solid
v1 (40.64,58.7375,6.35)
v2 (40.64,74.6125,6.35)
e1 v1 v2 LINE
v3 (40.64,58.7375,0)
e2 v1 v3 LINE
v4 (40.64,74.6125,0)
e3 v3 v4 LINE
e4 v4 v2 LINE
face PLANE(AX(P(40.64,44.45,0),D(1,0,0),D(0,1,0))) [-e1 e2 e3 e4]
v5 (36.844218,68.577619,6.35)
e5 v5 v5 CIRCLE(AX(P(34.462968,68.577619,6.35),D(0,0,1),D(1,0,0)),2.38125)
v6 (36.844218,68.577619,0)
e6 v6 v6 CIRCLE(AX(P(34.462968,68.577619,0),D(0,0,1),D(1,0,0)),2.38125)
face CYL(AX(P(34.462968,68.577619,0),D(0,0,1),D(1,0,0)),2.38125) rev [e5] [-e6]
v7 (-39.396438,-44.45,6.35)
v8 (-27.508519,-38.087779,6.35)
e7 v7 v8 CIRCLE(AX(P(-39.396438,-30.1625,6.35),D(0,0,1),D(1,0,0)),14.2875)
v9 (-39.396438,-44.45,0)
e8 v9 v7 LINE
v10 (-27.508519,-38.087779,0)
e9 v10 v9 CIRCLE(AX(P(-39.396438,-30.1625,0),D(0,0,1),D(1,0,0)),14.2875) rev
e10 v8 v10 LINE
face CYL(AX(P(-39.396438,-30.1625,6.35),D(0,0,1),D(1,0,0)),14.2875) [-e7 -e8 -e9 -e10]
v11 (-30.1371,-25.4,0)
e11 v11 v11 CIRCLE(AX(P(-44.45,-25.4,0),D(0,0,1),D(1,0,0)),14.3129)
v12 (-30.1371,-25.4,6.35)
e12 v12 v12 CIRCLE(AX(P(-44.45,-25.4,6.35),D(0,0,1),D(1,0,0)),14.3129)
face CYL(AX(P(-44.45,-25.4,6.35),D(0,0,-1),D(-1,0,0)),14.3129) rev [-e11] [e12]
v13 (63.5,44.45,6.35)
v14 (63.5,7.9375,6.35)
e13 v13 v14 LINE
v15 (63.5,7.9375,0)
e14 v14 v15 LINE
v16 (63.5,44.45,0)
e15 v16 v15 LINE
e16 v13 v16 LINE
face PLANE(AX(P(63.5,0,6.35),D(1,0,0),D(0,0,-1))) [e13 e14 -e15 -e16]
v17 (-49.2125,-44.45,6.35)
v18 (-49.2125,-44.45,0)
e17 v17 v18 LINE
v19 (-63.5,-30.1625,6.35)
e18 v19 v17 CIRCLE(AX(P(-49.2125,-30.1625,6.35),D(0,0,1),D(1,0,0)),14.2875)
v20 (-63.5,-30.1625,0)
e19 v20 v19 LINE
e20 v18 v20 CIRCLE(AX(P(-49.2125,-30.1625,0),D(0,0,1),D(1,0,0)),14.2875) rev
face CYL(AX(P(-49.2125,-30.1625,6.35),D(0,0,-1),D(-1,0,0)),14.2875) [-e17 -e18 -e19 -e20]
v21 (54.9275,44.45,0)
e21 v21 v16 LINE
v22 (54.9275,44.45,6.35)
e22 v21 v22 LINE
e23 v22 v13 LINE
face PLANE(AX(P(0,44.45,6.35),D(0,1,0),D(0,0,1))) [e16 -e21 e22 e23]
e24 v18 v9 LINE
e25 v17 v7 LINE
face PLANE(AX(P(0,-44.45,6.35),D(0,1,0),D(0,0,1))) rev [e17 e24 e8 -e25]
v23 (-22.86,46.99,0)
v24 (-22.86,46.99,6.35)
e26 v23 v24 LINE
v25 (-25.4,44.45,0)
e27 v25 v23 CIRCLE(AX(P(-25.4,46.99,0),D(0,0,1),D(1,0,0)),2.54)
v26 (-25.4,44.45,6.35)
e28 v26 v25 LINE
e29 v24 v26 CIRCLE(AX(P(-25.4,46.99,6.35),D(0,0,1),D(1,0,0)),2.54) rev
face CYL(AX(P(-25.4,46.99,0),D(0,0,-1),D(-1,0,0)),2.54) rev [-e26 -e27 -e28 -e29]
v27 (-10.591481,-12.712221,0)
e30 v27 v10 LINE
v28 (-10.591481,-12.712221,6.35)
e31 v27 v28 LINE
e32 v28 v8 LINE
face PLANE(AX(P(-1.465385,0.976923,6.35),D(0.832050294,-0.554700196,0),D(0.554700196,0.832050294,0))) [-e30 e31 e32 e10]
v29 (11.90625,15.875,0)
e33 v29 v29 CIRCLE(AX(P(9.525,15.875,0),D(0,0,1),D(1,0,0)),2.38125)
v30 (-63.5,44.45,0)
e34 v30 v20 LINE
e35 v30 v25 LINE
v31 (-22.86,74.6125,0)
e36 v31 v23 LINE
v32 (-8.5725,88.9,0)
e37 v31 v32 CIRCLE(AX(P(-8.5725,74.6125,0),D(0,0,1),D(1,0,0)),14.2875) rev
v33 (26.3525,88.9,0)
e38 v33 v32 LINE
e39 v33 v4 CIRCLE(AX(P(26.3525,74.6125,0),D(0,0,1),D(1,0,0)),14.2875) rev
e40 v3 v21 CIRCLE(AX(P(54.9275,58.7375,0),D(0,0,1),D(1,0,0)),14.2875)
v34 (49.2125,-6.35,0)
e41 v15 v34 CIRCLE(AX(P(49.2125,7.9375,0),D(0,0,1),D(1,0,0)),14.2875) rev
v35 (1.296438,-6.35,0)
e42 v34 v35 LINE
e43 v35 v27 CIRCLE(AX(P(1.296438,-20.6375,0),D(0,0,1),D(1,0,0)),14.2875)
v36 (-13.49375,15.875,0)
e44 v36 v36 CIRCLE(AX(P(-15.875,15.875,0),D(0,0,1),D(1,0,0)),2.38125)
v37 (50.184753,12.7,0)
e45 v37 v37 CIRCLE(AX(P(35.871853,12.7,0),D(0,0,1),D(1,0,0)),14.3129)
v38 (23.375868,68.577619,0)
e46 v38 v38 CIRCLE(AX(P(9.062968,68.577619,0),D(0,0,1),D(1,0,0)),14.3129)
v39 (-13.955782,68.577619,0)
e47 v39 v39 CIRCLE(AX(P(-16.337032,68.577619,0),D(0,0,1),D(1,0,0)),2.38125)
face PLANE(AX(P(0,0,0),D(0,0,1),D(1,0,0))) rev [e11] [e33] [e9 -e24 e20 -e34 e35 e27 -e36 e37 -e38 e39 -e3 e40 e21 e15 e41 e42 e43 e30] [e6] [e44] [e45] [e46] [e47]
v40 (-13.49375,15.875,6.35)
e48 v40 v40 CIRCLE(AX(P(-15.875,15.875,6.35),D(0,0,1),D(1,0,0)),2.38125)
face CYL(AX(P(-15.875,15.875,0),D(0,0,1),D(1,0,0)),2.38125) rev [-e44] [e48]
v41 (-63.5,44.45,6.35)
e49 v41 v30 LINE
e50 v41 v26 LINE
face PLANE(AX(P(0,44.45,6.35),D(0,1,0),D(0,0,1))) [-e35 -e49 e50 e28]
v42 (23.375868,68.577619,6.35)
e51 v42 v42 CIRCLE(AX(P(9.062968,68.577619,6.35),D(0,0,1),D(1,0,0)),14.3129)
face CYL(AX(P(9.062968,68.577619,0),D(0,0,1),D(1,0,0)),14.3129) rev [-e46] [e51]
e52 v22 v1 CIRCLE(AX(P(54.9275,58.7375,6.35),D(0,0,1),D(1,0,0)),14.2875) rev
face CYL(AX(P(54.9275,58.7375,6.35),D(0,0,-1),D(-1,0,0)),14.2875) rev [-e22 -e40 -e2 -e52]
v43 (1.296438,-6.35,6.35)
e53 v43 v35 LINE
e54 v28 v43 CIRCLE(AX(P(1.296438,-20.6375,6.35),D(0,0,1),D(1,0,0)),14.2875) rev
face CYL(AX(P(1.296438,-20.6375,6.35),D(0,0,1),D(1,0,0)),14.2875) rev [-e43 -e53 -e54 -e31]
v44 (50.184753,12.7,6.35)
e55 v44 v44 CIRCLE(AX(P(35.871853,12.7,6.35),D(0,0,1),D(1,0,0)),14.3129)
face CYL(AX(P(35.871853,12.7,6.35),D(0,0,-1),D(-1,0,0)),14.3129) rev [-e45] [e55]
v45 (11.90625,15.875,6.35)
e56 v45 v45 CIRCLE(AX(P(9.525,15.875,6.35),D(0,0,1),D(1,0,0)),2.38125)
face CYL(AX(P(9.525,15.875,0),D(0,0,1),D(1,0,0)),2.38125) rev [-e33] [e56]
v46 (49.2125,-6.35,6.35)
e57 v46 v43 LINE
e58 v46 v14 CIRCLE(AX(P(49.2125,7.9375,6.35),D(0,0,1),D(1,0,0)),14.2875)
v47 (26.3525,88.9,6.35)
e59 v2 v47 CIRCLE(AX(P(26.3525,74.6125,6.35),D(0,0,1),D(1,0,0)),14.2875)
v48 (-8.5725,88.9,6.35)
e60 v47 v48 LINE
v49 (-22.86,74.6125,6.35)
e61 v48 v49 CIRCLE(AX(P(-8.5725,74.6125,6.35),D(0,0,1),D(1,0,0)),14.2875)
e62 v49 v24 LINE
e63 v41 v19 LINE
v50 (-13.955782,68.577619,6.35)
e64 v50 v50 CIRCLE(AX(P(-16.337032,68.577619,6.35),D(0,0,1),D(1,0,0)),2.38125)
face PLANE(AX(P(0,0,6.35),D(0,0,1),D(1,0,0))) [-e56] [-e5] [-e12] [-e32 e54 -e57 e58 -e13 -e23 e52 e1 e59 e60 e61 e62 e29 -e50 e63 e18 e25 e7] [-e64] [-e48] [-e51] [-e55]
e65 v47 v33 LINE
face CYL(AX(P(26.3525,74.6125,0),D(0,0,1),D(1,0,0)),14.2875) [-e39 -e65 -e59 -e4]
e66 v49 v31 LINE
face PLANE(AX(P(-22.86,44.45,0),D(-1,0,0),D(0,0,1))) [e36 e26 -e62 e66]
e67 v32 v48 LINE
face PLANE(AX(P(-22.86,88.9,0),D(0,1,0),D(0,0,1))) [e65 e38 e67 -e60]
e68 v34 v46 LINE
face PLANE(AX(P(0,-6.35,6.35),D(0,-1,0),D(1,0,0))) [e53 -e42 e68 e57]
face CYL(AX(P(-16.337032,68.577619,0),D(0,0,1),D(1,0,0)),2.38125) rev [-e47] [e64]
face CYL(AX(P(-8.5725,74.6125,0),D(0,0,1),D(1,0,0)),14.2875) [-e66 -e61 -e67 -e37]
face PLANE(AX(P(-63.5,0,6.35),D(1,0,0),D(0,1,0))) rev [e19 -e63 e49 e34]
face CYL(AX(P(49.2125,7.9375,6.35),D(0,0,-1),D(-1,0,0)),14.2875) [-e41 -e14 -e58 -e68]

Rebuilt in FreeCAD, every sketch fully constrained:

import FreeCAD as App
import Part
import Sketcher

V = App.Vector
Q = App.Units.Quantity


def edges_at(feature, points):
    """Names of the edges that pass closest to the given points."""
    edges = feature.Shape.Edges
    near = lambda p: min(range(len(edges)), key=lambda i: edges[i].distToShape(Part.Vertex(*p))[0])
    return sorted({f"Edge{near(p) + 1}" for p in points})

doc = App.newDocument("Part")
body = doc.addObject("PartDesign::Body", "Body")

sketch1 = body.newObject("Sketcher::SketchObject", "Sketch")
sketch1.AttachmentSupport = (doc.getObject("XY_Plane"), [""])
sketch1.MapMode = "FlatFace"
sketch1.addGeometry([
    Part.LineSegment(V(-6.35, -6.35, 0), V(63.5, -6.35, 0)),
    Part.LineSegment(V(63.5, -6.35, 0), V(63.5, 44.45, 0)),
    Part.LineSegment(V(63.5, 44.45, 0), V(-63.5, 44.45, 0)),
    Part.LineSegment(V(-63.5, 44.45, 0), V(-63.5, -44.45, 0)),
    Part.LineSegment(V(-63.5, -44.45, 0), V(-31.75, -44.45, 0)),
    Part.LineSegment(V(-31.75, -44.45, 0), V(-6.35, -6.35, 0)),
    Part.Circle(V(-44.45, -25.4, 0), V(0, 0, 1), 14.3129),
    Part.Circle(V(35.871853, 12.7, 0), V(0, 0, 1), 14.3129),
], False)
sketch1.addConstraint([
    Sketcher.Constraint("Coincident", 0, 2, 1, 1),
    Sketcher.Constraint("Coincident", 1, 2, 2, 1),
    Sketcher.Constraint("Coincident", 2, 2, 3, 1),
    Sketcher.Constraint("Coincident", 3, 2, 4, 1),
    Sketcher.Constraint("Coincident", 4, 2, 5, 1),
    Sketcher.Constraint("Coincident", 5, 2, 0, 1),
    Sketcher.Constraint("Horizontal", 0),
    Sketcher.Constraint("Vertical", 1),
    Sketcher.Constraint("Horizontal", 2),
    Sketcher.Constraint("Vertical", 3),
    Sketcher.Constraint("Horizontal", 4),
    Sketcher.Constraint("Equal", 6, 7),
    Sketcher.Constraint("Symmetric", 1, 2, 3, 2, -1, 1),
    Sketcher.Constraint("DistanceX", 2, 2, 2, 1, Q("5 in")),
    Sketcher.Constraint("DistanceY", 1, 1, 1, 2, Q("2 in")),
    Sketcher.Constraint("Diameter", 6, Q("1.127 in")),
    Sketcher.Constraint("DistanceY", 3, 2, 3, 1, Q("3.5 in")),
    Sketcher.Constraint("DistanceY", 6, 3, -1, 1, Q("1 in")),
    Sketcher.Constraint("DistanceX", 4, 2, 5, 2, Q("1 in")),
    Sketcher.Constraint("DistanceX", 0, 1, 0, 2, Q("2.75 in")),
    Sketcher.Constraint("DistanceY", -1, 1, 7, 3, Q("0.5 in")),
    Sketcher.Constraint("DistanceX", 6, 3, 4, 2, Q("0.5 in")),
    Sketcher.Constraint("DistanceX", -1, 1, 7, 3, Q("35.871853 mm")),
])
pad1 = body.newObject("PartDesign::Pad", "Pad")
pad1.Profile = sketch1
pad1.Length = Q("0.25 in")
doc.recompute()

fillet = body.newObject("PartDesign::Fillet", "Fillet")
fillet.Base = (pad1, edges_at(pad1, [
    (-31.75, -44.45, 3.175),
    (-63.5, -44.45, 3.175),
    (63.5, -6.35, 3.175),
    (-6.35, -6.35, 3.175),
]))
fillet.Radius = Q("0.5625 in")

sketch2 = body.newObject("Sketcher::SketchObject", "Sketch001")
sketch2.AttachmentSupport = (doc.getObject("XY_Plane"), [""])
sketch2.MapMode = "FlatFace"
sketch2.AttachmentOffset = App.Placement(V(0, 0, 0.25 * 25.4), App.Rotation())
sketch2.addGeometry([
    Part.LineSegment(V(-22.86, 88.9, 0), V(-22.86, 44.45, 0)),
    Part.LineSegment(V(-22.86, 44.45, 0), V(40.64, 44.45, 0)),
    Part.LineSegment(V(40.64, 44.45, 0), V(40.64, 88.9, 0)),
    Part.LineSegment(V(40.64, 88.9, 0), V(-22.86, 88.9, 0)),
], False)
sketch2.addConstraint([
    Sketcher.Constraint("Coincident", 0, 2, 1, 1),
    Sketcher.Constraint("Coincident", 1, 2, 2, 1),
    Sketcher.Constraint("Coincident", 2, 2, 3, 1),
    Sketcher.Constraint("Coincident", 3, 2, 0, 1),
    Sketcher.Constraint("Vertical", 0),
    Sketcher.Constraint("Horizontal", 1),
    Sketcher.Constraint("Vertical", 2),
    Sketcher.Constraint("Horizontal", 3),
    Sketcher.Constraint("DistanceX", 1, 1, 1, 2, Q("2.5 in")),
    Sketcher.Constraint("DistanceY", 0, 2, 0, 1, Q("1.75 in")),
    Sketcher.Constraint("DistanceX", 0, 2, -1, 1, Q("0.9 in")),
    Sketcher.Constraint("DistanceY", -1, 1, 2, 2, Q("3.5 in")),
])
pad2 = body.newObject("PartDesign::Pad", "Pad001")
pad2.Profile = sketch2
pad2.Length = Q("0.25 in")
pad2.Reversed = True
doc.recompute()

fillet2 = body.newObject("PartDesign::Fillet", "Fillet001")
fillet2.Base = (pad2, edges_at(pad2, [(-22.86, 88.9, 3.175), (40.64, 88.9, 3.175), (40.64, 44.45, 3.175)]))
fillet2.Radius = Q("0.5625 in")

sketch3 = body.newObject("Sketcher::SketchObject", "Sketch002")
sketch3.AttachmentSupport = (doc.getObject("XY_Plane"), [""])
sketch3.MapMode = "FlatFace"
sketch3.AttachmentOffset = App.Placement(V(0, 0, 0.25 * 25.4), App.Rotation())
sketch3.addGeometry(Part.Circle(V(9.062968, 68.577619, 0), V(0, 0, 1), 14.3129), False)
sketch3.addConstraint([
    Sketcher.Constraint("Diameter", 0, Q("1.127 in")),
    Sketcher.Constraint("DistanceY", -1, 1, 0, 3, Q("68.577619 mm")),
    Sketcher.Constraint("DistanceX", -1, 1, 0, 3, Q("9.062968 mm")),
])
pocket1 = body.newObject("PartDesign::Pocket", "Pocket")
pocket1.Profile = sketch3
pocket1.Type = "ThroughAll"

sketch4 = body.newObject("Sketcher::SketchObject", "Sketch003")
sketch4.AttachmentSupport = (doc.getObject("XY_Plane"), [""])
sketch4.MapMode = "FlatFace"
sketch4.AttachmentOffset = App.Placement(V(0, 0, 0.25 * 25.4), App.Rotation())
sketch4.addGeometry([
    Part.Circle(V(-16.337032, 68.577619, 0), V(0, 0, 1), 2.38125),
    Part.Circle(V(34.462968, 68.577619, 0), V(0, 0, 1), 2.38125),
    Part.Circle(V(9.062968, 68.577619, 0), V(0, 0, 1), 14.2875),
], False)
sketch4.addConstraint([
    Sketcher.Constraint("Equal", 0, 1),
    Sketcher.Constraint("Horizontal", 0, 3, 1, 3),
    Sketcher.Constraint("Horizontal", 1, 3, 2, 3),
    Sketcher.Constraint("Diameter", 0, Q("0.1875 in")),
    Sketcher.Constraint("Diameter", 2, Q("1.125 in")),
    Sketcher.Constraint("DistanceX", 0, 3, 1, 3, Q("2 in")),
    Sketcher.Constraint("DistanceX", 0, 3, 2, 3, Q("1 in")),
    Sketcher.Constraint("DistanceY", -1, 1, 0, 3, Q("68.577619 mm")),
    Sketcher.Constraint("DistanceX", 0, 3, -1, 1, Q("16.337032 mm")),
])
pocket2 = body.newObject("PartDesign::Pocket", "Pocket001")
pocket2.Profile = sketch4
pocket2.Type = "ThroughAll"

sketch5 = body.newObject("Sketcher::SketchObject", "Sketch004")
sketch5.AttachmentSupport = (doc.getObject("XY_Plane"), [""])
sketch5.MapMode = "FlatFace"
sketch5.AttachmentOffset = App.Placement(V(0, 0, 0.25 * 25.4), App.Rotation())
sketch5.addGeometry([
    Part.Circle(V(-15.875, 15.875, 0), V(0, 0, 1), 2.38125),
    Part.Circle(V(9.525, 15.875, 0), V(0, 0, 1), 2.38125),
], False)
sketch5.addConstraint([
    Sketcher.Constraint("Equal", 0, 1),
    Sketcher.Constraint("Horizontal", 0, 3, 1, 3),
    Sketcher.Constraint("Diameter", 0, Q("0.1875 in")),
    Sketcher.Constraint("DistanceX", 0, 3, 1, 3, Q("1 in")),
    Sketcher.Constraint("DistanceX", 0, 3, -1, 1, Q("0.625 in")),
    Sketcher.Constraint("DistanceY", -1, 1, 0, 3, Q("0.625 in")),
])
pocket3 = body.newObject("PartDesign::Pocket", "Pocket002")
pocket3.Profile = sketch5
pocket3.Type = "ThroughAll"
doc.recompute()

fillet3 = body.newObject("PartDesign::Fillet", "Fillet002")
fillet3.Base = (pocket3, edges_at(pocket3, [(-22.86, 44.45, 3.175)]))
fillet3.Radius = Q("0.1 in")

doc.recompute()
